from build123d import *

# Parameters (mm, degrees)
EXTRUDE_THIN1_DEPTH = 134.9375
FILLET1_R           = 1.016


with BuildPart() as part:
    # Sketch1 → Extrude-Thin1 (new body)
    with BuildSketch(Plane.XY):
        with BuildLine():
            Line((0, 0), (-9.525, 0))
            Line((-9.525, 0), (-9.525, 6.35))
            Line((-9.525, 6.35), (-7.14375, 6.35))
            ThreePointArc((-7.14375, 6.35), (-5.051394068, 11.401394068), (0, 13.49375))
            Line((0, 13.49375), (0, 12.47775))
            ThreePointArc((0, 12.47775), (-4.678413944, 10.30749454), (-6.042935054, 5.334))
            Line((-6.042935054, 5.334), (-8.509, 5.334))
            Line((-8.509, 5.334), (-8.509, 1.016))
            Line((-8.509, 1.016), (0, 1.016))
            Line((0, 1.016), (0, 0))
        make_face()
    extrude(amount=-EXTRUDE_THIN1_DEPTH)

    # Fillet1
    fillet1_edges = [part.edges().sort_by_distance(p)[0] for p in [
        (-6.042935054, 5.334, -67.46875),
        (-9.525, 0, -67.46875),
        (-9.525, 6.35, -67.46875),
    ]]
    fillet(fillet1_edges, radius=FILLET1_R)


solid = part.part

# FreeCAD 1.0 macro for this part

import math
import FreeCAD as App
import Part
import Sketcher
Q = App.Units.Quantity


def edges_at(feature, points):
    """Names of the edges that pass closest to the given points."""
    edges = feature.Shape.Edges
    near = lambda p: min(range(len(edges)), key=lambda i: edges[i].distToShape(Part.Vertex(*p))[0])
    return sorted({f"Edge{near(p) + 1}" for p in points})

doc = App.newDocument("Part")
body = doc.addObject("PartDesign::Body", "Body")

sketch1 = doc.addObject("Sketcher::SketchObject", "Sketch")
body.addObject(sketch1)
sketch1.AttachmentSupport = (doc.XY_Plane, [""])
sketch1.MapMode = "FlatFace"
sketch1.addGeometry([
    Part.LineSegment(App.Vector(-9.5, 0, 0), App.Vector(0, 0, 0)),
    Part.LineSegment(App.Vector(0, 0, 0), App.Vector(0, 1, 0)),
    Part.LineSegment(App.Vector(0, 1, 0), App.Vector(-8.5, 1, 0)),
    Part.LineSegment(App.Vector(-8.5, 1, 0), App.Vector(-8.5, 5.3, 0)),
    Part.LineSegment(App.Vector(-8.5, 5.3, 0), App.Vector(-6, 5.3, 0)),
    Part.ArcOfCircle(Part.Circle(App.Vector(0, 6.3, 0), App.Vector(0, 0, 1), 6.1), math.radians(90), math.radians(190)),
    Part.LineSegment(App.Vector(0, 12.5, 0), App.Vector(0, 13.5, 0)),
    Part.ArcOfCircle(Part.Circle(App.Vector(0, 6.3, 0), App.Vector(0, 0, 1), 7.1), math.radians(90), math.radians(180)),
    Part.LineSegment(App.Vector(-7.1, 6.3, 0), App.Vector(-9.5, 6.3, 0)),
    Part.LineSegment(App.Vector(-9.5, 6.3, 0), App.Vector(-9.5, 0, 0)),
], False)
sketch1.addConstraint([
    Sketcher.Constraint("Coincident", 0, 2, 1, 1),
    Sketcher.Constraint("Coincident", 1, 2, 2, 1),
    Sketcher.Constraint("Coincident", 2, 2, 3, 1),
    Sketcher.Constraint("Coincident", 3, 2, 4, 1),
    Sketcher.Constraint("Coincident", 4, 2, 5, 2),
    Sketcher.Constraint("Coincident", 5, 1, 6, 1),
    Sketcher.Constraint("Coincident", 6, 2, 7, 1),
    Sketcher.Constraint("Coincident", 7, 2, 8, 1),
    Sketcher.Constraint("Coincident", 8, 2, 9, 1),
    Sketcher.Constraint("Coincident", 9, 2, 0, 1),
    Sketcher.Constraint("Horizontal", 0),
    Sketcher.Constraint("Vertical", 1),
    Sketcher.Constraint("Horizontal", 2),
    Sketcher.Constraint("Vertical", 3),
    Sketcher.Constraint("Horizontal", 4),
    Sketcher.Constraint("Vertical", 6),
    Sketcher.Constraint("Horizontal", 8),
    Sketcher.Constraint("Vertical", 9),
    Sketcher.Constraint("Coincident", 0, 2, -1, 1),
    Sketcher.Constraint("Coincident", 7, 3, 5, 3),
    Sketcher.Constraint("PointOnObject", 5, 3, -2),
    Sketcher.Constraint("PointOnObject", 5, 1, -2),
    Sketcher.Constraint("Horizontal", 5, 3, 7, 2),
    Sketcher.Constraint("Equal", 1, 6),
    Sketcher.Constraint("Radius", 7, Q("0.28125 in")),
    Sketcher.Constraint("DistanceY", 1, 1, 1, 2, Q("0.04 in")),
    Sketcher.Constraint("DistanceY", 3, 1, 3, 2, Q("0.17 in")),
    Sketcher.Constraint("DistanceY", 9, 2, 9, 1, Q("0.25 in")),
    Sketcher.Constraint("DistanceX", 0, 1, 0, 2, Q("0.375 in")),
    Sketcher.Constraint("DistanceX", 2, 2, 2, 1, Q("0.335 in")),
])
pad1 = doc.addObject("PartDesign::Pad", "Pad")
body.addObject(pad1)
pad1.Profile = sketch1
pad1.Length = Q("5.3125 in")
pad1.Reversed = True
doc.recompute()

fillet = doc.addObject("PartDesign::Fillet", "Fillet")
body.addObject(fillet)
fillet.Base = (pad1, edges_at(pad1, [(-6.043, 5.334, -67.469), (-9.525, 0, -67.469), (-9.525, 6.35, -67.469)]))
fillet.Radius = Q("0.04 in")

doc.recompute()
